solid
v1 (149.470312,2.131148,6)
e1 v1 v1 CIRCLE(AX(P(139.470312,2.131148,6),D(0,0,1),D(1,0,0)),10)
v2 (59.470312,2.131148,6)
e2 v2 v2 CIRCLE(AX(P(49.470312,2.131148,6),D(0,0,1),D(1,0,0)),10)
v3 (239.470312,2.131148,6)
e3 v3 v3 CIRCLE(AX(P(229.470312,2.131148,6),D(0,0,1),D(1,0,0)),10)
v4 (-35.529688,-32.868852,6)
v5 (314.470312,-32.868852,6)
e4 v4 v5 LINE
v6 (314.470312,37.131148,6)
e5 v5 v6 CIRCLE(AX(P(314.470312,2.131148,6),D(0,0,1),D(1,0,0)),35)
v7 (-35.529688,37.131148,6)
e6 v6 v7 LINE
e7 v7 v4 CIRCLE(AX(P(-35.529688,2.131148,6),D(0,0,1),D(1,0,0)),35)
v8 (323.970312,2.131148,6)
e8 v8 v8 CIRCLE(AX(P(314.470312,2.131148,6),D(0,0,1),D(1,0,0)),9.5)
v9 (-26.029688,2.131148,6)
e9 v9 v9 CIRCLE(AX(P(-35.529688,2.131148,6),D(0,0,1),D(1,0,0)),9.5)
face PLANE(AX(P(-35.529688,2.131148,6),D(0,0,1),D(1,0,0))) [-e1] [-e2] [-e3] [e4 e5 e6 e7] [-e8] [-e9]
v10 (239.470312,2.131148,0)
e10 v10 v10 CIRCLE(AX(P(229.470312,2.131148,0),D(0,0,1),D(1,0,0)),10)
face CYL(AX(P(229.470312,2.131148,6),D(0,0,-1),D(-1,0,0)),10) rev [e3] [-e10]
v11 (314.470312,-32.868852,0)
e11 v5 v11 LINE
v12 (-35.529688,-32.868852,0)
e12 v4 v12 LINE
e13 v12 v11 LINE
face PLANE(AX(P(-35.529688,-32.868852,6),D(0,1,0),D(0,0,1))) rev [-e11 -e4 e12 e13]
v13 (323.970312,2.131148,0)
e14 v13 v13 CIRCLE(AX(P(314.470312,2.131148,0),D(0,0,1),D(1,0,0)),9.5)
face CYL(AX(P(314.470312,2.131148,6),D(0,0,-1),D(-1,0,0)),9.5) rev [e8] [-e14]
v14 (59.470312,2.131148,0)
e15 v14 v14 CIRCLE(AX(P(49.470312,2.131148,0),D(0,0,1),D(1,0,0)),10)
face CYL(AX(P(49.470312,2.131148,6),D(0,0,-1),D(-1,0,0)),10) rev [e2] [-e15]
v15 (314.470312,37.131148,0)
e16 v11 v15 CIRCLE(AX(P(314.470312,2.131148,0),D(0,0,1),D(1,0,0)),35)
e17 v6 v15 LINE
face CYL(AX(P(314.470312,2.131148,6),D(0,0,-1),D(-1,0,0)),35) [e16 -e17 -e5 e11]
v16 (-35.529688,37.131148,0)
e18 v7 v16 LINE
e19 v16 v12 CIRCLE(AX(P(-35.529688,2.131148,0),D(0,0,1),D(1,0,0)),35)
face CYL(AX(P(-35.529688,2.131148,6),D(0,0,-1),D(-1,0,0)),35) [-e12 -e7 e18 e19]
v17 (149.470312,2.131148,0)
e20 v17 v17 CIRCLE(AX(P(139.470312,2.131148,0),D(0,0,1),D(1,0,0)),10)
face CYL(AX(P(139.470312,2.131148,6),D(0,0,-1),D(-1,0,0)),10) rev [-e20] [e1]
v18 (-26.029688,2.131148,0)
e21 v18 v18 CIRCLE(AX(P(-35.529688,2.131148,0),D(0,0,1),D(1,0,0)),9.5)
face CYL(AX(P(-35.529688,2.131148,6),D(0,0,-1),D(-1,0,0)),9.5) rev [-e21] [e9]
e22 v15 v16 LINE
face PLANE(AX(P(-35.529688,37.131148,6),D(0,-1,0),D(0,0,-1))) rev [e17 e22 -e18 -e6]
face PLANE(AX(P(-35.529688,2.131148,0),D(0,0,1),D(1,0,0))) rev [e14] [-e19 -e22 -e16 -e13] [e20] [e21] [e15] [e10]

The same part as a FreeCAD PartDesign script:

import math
import FreeCAD as App
import Part
import Sketcher

V = App.Vector

doc = App.newDocument("Part")
params = doc.addObject("Spreadsheet::Sheet", "Params")
for row, (alias, value) in enumerate([
    ("sketch1_diameter", "19 mm"),
    ("sketch1_diameter2", "20 mm"),
    ("sketch1_radius", "35 mm"),
    ("sketch1_width", "350 mm"),
    ("pad1_length", "6 mm"),
], start=1):
    params.set(f"A{row}", alias)
    params.set(f"B{row}", "=" + value)
    params.setAlias(f"B{row}", alias)

body = doc.addObject("PartDesign::Body", "Body")

# Sketch on XY plane
sketch1 = body.newObject("Sketcher::SketchObject", "Sketch")
sketch1.AttachmentSupport = (doc.getObject("XY_Plane"), [""])
sketch1.MapMode = "FlatFace"
sketch1.addGeometry([
    Part.LineSegment(V(314, 37, 0), V(-36, 37, 0)),  # 0
    Part.ArcOfCircle(Part.Circle(V(-36, 2, 0), V(0, 0, 1), 35), math.radians(90), math.radians(270)),  # 1
    Part.LineSegment(V(-36, -33, 0), V(314, -33, 0)),  # 2
    Part.ArcOfCircle(Part.Circle(V(314, 2, 0), V(0, 0, 1), 35), math.radians(-90), math.radians(90)),  # 3
    Part.Circle(V(314, 2, 0), V(0, 0, 1), 10),  # 4
    Part.Circle(V(229, 2, 0), V(0, 0, 1), 10),  # 5
    Part.Circle(V(139, 2, 0), V(0, 0, 1), 10),  # 6
    Part.Circle(V(49, 2, 0), V(0, 0, 1), 10),  # 7
    Part.Circle(V(-36, 2, 0), V(0, 0, 1), 10),  # 8
], False)
sketch1.addConstraint([
    Sketcher.Constraint("Tangent", 0, 2, 1, 1),
    Sketcher.Constraint("Tangent", 1, 2, 2, 1),
    Sketcher.Constraint("Tangent", 2, 2, 3, 1),
    Sketcher.Constraint("Tangent", 3, 2, 0, 1),
    Sketcher.Constraint("Horizontal", 0),
    Sketcher.Constraint("Horizontal", 2),
    Sketcher.Constraint("Coincident", 4, 3, 3, 3),
    Sketcher.Constraint("Coincident", 8, 3, 1, 3),
    Sketcher.Constraint("Equal", 5, 6),
    Sketcher.Constraint("Equal", 6, 7),
    Sketcher.Constraint("Equal", 4, 8),
    Sketcher.Constraint("Horizontal", 4, 3, 5, 3),
    Sketcher.Constraint("Horizontal", 5, 3, 6, 3),
    Sketcher.Constraint("Horizontal", 6, 3, 7, 3),
    Sketcher.Constraint("Diameter", 4, 19.0),
    Sketcher.Constraint("Diameter", 5, 20.0),
    Sketcher.Constraint("Radius", 1, 35.0),
    Sketcher.Constraint("DistanceX", 0, 2, 0, 1, 350.0),
    Sketcher.Constraint("DistanceX", 5, 3, 3, 3, 85.0),
    Sketcher.Constraint("DistanceX", 6, 3, 5, 3, 90.0),
    Sketcher.Constraint("DistanceX", 1, 3, 7, 3, 85.0),
    Sketcher.Constraint("DistanceX", 1, 3, -1, 1, 35.529688),
    Sketcher.Constraint("DistanceY", -1, 1, 1, 3, 2.131148),
])
sketch1.setExpression("Constraints[14]", "Params.sketch1_diameter")
sketch1.setExpression("Constraints[15]", "Params.sketch1_diameter2")
sketch1.setExpression("Constraints[16]", "Params.sketch1_radius")
sketch1.setExpression("Constraints[17]", "Params.sketch1_width")
pad1 = body.newObject("PartDesign::Pad", "Pad")
pad1.Profile = sketch1
pad1.setExpression("Length", "Params.pad1_length")

doc.recompute()
